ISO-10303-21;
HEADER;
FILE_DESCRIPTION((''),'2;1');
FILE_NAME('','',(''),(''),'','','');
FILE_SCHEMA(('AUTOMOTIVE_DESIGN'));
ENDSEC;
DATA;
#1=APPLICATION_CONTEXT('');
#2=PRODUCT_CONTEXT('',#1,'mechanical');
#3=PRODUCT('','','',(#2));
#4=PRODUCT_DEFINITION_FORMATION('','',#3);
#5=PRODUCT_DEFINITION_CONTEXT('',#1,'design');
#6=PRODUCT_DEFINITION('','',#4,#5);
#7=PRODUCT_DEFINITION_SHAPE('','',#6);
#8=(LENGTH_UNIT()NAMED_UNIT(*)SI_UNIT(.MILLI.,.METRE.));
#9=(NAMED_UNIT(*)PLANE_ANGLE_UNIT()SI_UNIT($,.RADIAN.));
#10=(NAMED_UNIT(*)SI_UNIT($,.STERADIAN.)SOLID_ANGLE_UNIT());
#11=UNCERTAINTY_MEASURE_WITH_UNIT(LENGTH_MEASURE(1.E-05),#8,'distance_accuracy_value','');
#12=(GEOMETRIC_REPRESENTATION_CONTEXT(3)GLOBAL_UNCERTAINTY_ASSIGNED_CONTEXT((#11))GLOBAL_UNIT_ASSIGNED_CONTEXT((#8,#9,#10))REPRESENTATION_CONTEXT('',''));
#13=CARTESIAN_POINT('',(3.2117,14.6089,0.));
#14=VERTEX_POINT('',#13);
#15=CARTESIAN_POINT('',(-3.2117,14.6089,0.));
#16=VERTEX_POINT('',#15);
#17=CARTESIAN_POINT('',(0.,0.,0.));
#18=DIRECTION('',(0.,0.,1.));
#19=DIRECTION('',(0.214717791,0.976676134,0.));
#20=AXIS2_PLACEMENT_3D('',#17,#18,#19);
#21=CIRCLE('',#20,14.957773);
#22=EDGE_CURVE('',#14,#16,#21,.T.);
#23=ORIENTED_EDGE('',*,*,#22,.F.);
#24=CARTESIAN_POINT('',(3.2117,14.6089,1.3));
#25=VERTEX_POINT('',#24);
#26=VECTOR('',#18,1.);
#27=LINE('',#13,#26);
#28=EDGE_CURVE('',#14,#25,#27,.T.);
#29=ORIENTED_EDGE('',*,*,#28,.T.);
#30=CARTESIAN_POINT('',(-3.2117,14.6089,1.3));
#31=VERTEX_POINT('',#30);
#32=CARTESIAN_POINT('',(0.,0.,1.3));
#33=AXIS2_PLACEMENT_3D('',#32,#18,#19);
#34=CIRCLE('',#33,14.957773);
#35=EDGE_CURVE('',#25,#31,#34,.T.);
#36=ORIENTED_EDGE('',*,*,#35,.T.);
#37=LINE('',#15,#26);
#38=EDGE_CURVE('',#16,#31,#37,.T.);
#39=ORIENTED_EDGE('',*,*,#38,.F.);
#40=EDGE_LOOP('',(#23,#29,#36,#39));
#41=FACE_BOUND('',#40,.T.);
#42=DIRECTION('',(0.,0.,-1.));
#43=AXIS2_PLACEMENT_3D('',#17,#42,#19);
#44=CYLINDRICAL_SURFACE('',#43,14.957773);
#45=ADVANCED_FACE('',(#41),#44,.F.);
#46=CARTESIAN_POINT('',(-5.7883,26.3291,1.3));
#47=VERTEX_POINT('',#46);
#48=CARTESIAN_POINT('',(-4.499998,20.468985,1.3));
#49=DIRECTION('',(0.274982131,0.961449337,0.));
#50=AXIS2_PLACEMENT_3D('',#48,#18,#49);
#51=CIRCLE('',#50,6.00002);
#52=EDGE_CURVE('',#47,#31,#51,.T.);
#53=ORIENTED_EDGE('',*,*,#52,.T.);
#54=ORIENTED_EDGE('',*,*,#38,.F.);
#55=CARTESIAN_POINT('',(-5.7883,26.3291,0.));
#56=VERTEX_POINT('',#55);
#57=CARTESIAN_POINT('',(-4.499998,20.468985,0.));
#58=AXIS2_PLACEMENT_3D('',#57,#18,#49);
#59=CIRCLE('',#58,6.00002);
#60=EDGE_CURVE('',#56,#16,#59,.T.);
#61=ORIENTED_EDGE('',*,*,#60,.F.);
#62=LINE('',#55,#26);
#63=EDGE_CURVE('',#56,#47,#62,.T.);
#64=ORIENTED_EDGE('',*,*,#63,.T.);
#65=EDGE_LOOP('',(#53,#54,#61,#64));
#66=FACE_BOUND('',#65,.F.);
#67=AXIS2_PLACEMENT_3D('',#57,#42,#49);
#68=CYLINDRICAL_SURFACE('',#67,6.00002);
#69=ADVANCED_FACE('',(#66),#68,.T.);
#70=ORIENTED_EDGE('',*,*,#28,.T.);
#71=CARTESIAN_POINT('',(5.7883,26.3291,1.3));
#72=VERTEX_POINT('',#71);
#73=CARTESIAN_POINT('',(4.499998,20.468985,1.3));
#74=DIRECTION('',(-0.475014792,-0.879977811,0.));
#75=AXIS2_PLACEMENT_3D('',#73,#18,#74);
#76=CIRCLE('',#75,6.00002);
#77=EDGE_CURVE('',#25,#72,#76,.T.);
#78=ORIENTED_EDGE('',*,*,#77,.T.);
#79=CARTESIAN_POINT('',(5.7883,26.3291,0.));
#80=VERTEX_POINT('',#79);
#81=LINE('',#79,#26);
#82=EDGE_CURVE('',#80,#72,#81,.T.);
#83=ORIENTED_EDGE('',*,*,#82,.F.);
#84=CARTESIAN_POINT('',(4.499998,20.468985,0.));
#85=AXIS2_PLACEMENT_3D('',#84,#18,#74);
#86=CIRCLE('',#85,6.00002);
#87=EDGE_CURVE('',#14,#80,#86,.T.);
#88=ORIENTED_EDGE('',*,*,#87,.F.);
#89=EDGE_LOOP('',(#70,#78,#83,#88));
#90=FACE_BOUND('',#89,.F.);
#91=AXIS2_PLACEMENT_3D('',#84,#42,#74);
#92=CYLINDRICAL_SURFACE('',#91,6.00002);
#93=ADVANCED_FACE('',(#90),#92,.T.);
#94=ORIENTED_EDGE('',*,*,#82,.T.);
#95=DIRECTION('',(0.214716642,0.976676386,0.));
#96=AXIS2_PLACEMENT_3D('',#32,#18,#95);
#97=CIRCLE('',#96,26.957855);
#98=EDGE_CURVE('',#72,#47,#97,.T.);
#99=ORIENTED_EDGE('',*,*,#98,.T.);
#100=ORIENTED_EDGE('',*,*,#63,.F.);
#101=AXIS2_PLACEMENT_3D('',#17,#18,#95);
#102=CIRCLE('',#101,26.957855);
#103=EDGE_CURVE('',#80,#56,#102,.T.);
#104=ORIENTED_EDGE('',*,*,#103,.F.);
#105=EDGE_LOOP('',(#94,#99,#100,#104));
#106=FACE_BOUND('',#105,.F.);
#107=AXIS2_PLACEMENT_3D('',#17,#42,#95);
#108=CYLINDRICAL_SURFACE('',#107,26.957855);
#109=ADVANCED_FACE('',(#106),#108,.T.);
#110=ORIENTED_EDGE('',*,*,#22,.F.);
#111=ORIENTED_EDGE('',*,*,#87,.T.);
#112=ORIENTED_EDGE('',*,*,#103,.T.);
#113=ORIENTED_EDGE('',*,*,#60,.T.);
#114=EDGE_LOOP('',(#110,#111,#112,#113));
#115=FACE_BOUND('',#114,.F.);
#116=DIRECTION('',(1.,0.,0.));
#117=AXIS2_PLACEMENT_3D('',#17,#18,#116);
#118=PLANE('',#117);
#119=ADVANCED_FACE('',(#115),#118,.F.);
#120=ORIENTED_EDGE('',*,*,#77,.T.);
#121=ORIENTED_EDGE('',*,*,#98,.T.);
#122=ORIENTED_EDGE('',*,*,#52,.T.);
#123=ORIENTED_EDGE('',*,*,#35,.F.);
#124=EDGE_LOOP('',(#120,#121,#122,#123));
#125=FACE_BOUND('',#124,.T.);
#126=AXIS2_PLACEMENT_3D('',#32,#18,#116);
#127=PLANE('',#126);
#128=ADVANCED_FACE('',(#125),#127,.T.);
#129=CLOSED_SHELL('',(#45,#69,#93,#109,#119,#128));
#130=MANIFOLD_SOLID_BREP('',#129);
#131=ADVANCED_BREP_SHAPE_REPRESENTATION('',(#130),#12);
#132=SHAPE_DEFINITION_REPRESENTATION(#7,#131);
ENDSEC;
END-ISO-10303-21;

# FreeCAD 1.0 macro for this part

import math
import FreeCAD as App
import Part
import Sketcher
Q = App.Units.Quantity

doc = App.newDocument("Part")
body = doc.addObject("PartDesign::Body", "Body")

# Sketch on XY plane
sketch1 = doc.addObject("Sketcher::SketchObject", "Sketch")
body.addObject(sketch1)
sketch1.AttachmentSupport = (doc.XY_Plane, [""])
sketch1.MapMode = "FlatFace"
sketch1.addGeometry(Part.ArcOfCircle(Part.Circle(App.Vector(4, 20, 0), App.Vector(0, 0, 1), 6), math.radians(-102), math.radians(78)), False)
sketch1.addGeometry(Part.ArcOfCircle(Part.Circle(App.Vector(0, 0, 0), App.Vector(0, 0, 1), 27), math.radians(78), math.radians(102)), False)
sketch1.addGeometry(Part.ArcOfCircle(Part.Circle(App.Vector(-4, 20, 0), App.Vector(0, 0, 1), 6), math.radians(102), math.radians(282)), False)
sketch1.addGeometry(Part.ArcOfCircle(Part.Circle(App.Vector(0, 0, 0), App.Vector(0, 0, 1), 15), math.radians(78), math.radians(102)), False)
sketch1.addConstraint(Sketcher.Constraint("Tangent", 0, 2, 1, 1))
sketch1.addConstraint(Sketcher.Constraint("Tangent", 1, 2, 2, 1))
sketch1.addConstraint(Sketcher.Constraint("Tangent", 2, 2, 3, 2))
sketch1.addConstraint(Sketcher.Constraint("Tangent", 3, 1, 0, 1))
sketch1.addConstraint(Sketcher.Constraint("Coincident", 1, 3, -1, 1))
sketch1.addConstraint(Sketcher.Constraint("Coincident", 3, 3, -1, 1))
sketch1.addConstraint(Sketcher.Constraint("Horizontal", 0, 3, 2, 3))
sketch1.addConstraint(Sketcher.Constraint("Radius", 0, Q("6 mm")))
sketch1.addConstraint(Sketcher.Constraint("DistanceX", 2, 3, 0, 3, Q("9 mm")))
sketch1.addConstraint(Sketcher.Constraint("Radius", 1, Q("26.9579 mm")))
pad1 = doc.addObject("PartDesign::Pad", "Pad")
body.addObject(pad1)
pad1.Profile = sketch1
pad1.Length = 1.3

doc.recompute()
